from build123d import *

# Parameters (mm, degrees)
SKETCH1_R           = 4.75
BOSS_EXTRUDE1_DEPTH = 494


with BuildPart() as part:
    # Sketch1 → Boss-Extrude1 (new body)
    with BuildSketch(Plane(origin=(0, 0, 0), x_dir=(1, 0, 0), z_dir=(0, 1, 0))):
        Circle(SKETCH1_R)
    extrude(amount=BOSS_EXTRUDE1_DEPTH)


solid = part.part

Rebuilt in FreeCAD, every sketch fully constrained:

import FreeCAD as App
import Part
import Sketcher

doc = App.newDocument("Part")
body = doc.addObject("PartDesign::Body", "Body")

sketch1 = body.newObject("Sketcher::SketchObject", "Sketch")
sketch1.AttachmentSupport = (doc.getObject("XZ_Plane"), [""])
sketch1.MapMode = "FlatFace"
sketch1.addGeometry(Part.Circle(App.Vector(0, 0, 0), App.Vector(0, 0, 1), 4.75), False)
sketch1.addConstraint(Sketcher.Constraint("Coincident", 0, 3, -1, 1))
sketch1.addConstraint(Sketcher.Constraint("Diameter", 0, 9.5))
pad1 = body.newObject("PartDesign::Pad", "Pad")
pad1.Profile = sketch1
pad1.Length = 494
pad1.Reversed = True

doc.recompute()
